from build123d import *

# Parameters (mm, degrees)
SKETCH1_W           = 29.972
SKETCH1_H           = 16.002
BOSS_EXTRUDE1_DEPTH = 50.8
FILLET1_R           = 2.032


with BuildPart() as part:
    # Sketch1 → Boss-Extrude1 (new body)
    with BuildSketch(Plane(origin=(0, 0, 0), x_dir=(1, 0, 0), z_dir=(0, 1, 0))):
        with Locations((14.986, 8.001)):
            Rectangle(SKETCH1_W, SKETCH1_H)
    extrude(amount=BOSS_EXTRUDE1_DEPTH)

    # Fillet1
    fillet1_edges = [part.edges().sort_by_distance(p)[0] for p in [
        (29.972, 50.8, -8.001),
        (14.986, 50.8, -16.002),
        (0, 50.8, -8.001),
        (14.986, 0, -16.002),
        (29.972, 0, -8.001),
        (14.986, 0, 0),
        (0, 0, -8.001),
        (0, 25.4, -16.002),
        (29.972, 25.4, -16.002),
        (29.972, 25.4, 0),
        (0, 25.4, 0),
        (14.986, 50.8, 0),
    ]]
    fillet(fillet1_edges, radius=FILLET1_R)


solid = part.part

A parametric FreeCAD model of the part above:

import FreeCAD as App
import Part
import Sketcher

V = App.Vector
Q = App.Units.Quantity

doc = App.newDocument("Part")
params = doc.addObject("Spreadsheet::Sheet", "Params")
for row, (alias, value) in enumerate([
    ("sketch1_width", "1.18 in"),
    ("sketch1_height", "0.63 in"),
    ("pad1_length", "2 in"),
    ("fillet_radius", "0.08 in"),
], start=1):
    params.set(f"A{row}", alias)
    params.set(f"B{row}", "=" + value)
    params.setAlias(f"B{row}", alias)

body = doc.addObject("PartDesign::Body", "Body")

# Sketch on XZ plane
sketch1 = body.newObject("Sketcher::SketchObject", "Sketch")
sketch1.AttachmentSupport = (doc.getObject("XZ_Plane"), [""])
sketch1.MapMode = "FlatFace"
sketch1.addGeometry([
    Part.LineSegment(V(0, -16, 0), V(0, 0, 0)),
    Part.LineSegment(V(0, 0, 0), V(30, 0, 0)),
    Part.LineSegment(V(30, 0, 0), V(30, -16, 0)),
    Part.LineSegment(V(30, -16, 0), V(0, -16, 0)),
], False)
sketch1.addConstraint([
    Sketcher.Constraint("Coincident", 0, 2, 1, 1),
    Sketcher.Constraint("Coincident", 1, 2, 2, 1),
    Sketcher.Constraint("Coincident", 2, 2, 3, 1),
    Sketcher.Constraint("Coincident", 3, 2, 0, 1),
    Sketcher.Constraint("Vertical", 0),
    Sketcher.Constraint("Horizontal", 1),
    Sketcher.Constraint("Vertical", 2),
    Sketcher.Constraint("Horizontal", 3),
    Sketcher.Constraint("Coincident", 0, 2, -1, 1),
    Sketcher.Constraint("DistanceX", 1, 1, 1, 2, Q("1.18 in")),
    Sketcher.Constraint("DistanceY", 0, 1, 0, 2, Q("0.63 in")),
])
sketch1.setExpression("Constraints[9]", "Params.sketch1_width")
sketch1.setExpression("Constraints[10]", "Params.sketch1_height")
pad1 = body.newObject("PartDesign::Pad", "Pad")
pad1.Profile = sketch1
pad1.setExpression("Length", "Params.pad1_length")
pad1.Reversed = True
doc.recompute()

fillet = body.newObject("PartDesign::Fillet", "Fillet")
fillet.Base = (pad1, ["Edge1"])
fillet.UseAllEdges = True
fillet.setExpression("Radius", "Params.fillet_radius")

doc.recompute()
